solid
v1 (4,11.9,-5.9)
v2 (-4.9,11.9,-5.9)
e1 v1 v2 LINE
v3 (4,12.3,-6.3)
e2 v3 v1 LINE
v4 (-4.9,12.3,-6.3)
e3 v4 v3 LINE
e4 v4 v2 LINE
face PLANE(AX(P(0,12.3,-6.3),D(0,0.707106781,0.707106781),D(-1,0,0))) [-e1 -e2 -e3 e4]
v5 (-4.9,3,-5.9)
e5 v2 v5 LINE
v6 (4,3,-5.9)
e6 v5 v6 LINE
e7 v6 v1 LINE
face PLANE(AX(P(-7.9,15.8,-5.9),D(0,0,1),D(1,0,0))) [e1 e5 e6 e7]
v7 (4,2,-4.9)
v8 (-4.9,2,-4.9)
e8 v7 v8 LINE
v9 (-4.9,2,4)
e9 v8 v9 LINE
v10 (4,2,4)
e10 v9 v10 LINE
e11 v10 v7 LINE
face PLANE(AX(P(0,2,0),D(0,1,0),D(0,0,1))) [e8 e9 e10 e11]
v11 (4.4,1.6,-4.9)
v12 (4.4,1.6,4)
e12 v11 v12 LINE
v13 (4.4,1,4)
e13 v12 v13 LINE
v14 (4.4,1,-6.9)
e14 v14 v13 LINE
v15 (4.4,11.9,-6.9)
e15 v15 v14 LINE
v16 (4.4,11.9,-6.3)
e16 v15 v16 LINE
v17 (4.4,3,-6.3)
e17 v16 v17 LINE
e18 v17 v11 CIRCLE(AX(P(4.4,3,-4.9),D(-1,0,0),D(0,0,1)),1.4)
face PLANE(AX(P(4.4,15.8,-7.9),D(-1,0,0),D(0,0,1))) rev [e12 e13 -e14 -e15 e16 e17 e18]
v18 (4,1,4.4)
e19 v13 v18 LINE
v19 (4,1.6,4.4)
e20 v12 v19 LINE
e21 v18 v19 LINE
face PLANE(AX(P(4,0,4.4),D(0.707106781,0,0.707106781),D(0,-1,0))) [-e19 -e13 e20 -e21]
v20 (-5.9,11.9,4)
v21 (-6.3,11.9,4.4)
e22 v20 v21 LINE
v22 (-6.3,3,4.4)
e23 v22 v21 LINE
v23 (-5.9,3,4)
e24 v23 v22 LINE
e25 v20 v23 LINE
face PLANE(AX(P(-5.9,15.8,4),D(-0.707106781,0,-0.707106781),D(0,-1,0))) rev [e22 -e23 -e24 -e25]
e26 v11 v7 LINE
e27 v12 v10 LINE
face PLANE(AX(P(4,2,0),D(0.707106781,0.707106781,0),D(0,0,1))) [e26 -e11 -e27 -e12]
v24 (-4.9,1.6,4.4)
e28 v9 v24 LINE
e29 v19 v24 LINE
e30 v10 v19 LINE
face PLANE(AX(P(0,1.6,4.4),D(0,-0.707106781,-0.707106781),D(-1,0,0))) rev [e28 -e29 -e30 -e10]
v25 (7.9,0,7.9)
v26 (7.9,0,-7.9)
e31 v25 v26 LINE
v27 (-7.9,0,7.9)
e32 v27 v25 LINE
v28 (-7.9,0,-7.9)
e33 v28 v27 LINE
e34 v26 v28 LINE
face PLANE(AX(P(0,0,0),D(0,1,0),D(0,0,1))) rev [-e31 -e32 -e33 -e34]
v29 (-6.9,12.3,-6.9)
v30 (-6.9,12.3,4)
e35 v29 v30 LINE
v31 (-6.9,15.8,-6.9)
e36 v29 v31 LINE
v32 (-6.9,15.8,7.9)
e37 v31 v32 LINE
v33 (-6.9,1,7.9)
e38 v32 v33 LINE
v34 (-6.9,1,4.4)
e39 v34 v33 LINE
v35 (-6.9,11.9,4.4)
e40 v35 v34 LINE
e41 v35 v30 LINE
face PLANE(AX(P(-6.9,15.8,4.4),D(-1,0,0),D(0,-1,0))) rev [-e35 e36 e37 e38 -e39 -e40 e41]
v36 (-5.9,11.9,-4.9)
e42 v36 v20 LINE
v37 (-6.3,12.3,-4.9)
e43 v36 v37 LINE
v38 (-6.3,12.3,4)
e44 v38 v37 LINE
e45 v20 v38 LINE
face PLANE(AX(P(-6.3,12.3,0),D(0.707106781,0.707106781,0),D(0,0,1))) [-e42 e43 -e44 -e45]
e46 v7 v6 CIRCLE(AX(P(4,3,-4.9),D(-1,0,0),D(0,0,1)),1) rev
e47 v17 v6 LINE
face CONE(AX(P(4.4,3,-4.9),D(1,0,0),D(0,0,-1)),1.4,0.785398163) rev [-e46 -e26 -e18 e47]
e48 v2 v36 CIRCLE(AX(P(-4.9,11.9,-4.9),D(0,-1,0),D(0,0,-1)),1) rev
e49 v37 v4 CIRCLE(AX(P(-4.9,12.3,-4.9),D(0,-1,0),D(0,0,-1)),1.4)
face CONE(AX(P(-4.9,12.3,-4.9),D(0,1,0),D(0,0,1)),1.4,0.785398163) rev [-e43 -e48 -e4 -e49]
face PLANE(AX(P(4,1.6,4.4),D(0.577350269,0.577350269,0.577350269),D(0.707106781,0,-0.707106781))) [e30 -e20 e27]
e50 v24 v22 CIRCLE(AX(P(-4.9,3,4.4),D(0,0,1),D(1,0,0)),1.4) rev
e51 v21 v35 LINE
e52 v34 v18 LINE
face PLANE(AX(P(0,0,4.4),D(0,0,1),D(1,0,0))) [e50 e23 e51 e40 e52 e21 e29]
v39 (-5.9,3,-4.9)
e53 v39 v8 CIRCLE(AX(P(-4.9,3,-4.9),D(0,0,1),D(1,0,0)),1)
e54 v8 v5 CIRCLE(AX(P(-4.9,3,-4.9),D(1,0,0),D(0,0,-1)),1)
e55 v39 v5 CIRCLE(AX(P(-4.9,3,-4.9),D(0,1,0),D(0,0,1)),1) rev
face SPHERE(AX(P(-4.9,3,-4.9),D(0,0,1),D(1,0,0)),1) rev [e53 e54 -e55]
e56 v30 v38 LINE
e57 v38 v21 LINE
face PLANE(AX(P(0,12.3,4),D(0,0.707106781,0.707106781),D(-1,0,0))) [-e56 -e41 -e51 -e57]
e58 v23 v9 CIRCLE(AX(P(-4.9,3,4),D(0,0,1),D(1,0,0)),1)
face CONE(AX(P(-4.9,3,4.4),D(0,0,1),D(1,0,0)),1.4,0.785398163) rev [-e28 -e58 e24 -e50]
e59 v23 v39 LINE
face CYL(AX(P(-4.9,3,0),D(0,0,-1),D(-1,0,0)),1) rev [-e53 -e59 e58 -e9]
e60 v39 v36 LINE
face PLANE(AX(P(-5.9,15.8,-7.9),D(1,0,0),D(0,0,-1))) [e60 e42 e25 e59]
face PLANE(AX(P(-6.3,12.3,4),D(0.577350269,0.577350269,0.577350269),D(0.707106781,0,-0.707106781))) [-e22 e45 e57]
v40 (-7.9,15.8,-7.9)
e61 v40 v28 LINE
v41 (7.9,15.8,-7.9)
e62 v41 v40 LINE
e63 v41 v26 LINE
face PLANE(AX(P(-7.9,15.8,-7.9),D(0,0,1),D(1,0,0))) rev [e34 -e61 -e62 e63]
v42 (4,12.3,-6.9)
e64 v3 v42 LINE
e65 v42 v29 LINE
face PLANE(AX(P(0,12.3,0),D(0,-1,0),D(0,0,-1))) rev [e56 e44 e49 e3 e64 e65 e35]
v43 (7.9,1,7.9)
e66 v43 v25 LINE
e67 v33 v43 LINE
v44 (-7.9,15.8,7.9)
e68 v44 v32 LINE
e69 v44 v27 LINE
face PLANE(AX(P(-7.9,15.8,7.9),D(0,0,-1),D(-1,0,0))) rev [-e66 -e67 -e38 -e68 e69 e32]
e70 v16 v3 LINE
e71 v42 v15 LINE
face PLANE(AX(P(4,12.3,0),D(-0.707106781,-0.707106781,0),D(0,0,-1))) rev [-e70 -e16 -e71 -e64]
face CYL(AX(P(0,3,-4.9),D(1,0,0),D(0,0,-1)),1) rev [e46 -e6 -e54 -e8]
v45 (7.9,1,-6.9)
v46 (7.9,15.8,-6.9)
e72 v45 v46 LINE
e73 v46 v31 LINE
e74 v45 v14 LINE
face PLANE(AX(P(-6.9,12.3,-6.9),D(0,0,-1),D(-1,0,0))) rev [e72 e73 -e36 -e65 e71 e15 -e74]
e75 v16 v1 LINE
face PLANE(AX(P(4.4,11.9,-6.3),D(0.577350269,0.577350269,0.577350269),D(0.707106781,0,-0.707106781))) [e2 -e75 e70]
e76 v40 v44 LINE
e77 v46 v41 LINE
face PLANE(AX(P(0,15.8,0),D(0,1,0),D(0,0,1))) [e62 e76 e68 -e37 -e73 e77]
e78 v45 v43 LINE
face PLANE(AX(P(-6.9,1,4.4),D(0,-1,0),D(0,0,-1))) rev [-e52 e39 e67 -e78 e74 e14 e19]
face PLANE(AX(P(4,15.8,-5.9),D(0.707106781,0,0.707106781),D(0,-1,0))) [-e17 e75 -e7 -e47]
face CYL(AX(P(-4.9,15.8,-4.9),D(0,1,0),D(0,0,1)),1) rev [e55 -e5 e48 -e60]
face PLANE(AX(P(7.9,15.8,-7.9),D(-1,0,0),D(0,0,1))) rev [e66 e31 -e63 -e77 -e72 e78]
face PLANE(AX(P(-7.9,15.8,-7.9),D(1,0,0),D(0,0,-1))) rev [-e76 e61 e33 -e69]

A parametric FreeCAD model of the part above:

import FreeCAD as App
import Part
import Sketcher
Q = App.Units.Quantity


def edges_at(feature, points):
    """Names of the edges that pass closest to the given points."""
    edges = feature.Shape.Edges
    near = lambda p: min(range(len(edges)), key=lambda i: edges[i].distToShape(Part.Vertex(*p))[0])
    return sorted({f"Edge{near(p) + 1}" for p in points})


def faces_at(feature, points):
    """Names of the faces that lie closest to the given points."""
    faces = feature.Shape.Faces
    near = lambda p: min(range(len(faces)), key=lambda i: faces[i].distToShape(Part.Vertex(*p))[0])
    return sorted({f"Face{near(p) + 1}" for p in points})


def add_polygon(sketch, points):
    """Adds a closed chain of lines whose ends are joined by coincident constraints."""
    first, n = sketch.GeometryCount, len(points)
    for a, b in zip(points, points[1:] + points[:1]):
        sketch.addGeometry(Part.LineSegment(App.Vector(*a, 0), App.Vector(*b, 0)), False)
    for i in range(n):
        sketch.addConstraint(Sketcher.Constraint("Coincident", first + i, 2, first + (i + 1) % n, 1))

doc = App.newDocument("Part")
body = doc.addObject("PartDesign::Body", "Body")

sketch1 = body.newObject("Sketcher::SketchObject", "Sketch")
sketch1.AttachmentSupport = (doc.getObject("XZ_Plane"), [""])
sketch1.MapMode = "FlatFace"
add_polygon(sketch1, [(-7.9, -7.9), (-7.9, 7.9), (7.9, 7.9), (7.9, -7.9)])
sketch1.addConstraint([
    Sketcher.Constraint("Vertical", 0),
    Sketcher.Constraint("Horizontal", 1),
    Sketcher.Constraint("Vertical", 2),
    Sketcher.Constraint("Horizontal", 3),
    Sketcher.Constraint("Symmetric", 0, 2, 2, 2, -1, 1),
    Sketcher.Constraint("Equal", 3, 0),
    Sketcher.Constraint("DistanceX", 1, 1, 1, 2, Q("15.8 mm")),
])
pad1 = body.newObject("PartDesign::Pad", "Pad")
pad1.Profile = sketch1
pad1.Length = 15.8
pad1.Reversed = True
doc.recompute()

thickness = body.newObject("PartDesign::Thickness", "Thickness")
thickness.Base = (pad1, faces_at(pad1, [(0, 15.8, 0), (0, 7.9, 7.9), (7.9, 7.9, 0)]))
thickness.Value = 2
thickness.Reversed = True
thickness.Join = "Intersection"

sketch2 = body.newObject("Sketcher::SketchObject", "Sketch001")
sketch2.AttachmentSupport = (doc.getObject("XY_Plane"), [""])
sketch2.MapMode = "FlatFace"
sketch2.AttachmentOffset = App.Placement(App.Vector(0, 0, 7.9), App.Rotation())
add_polygon(sketch2, [(-5.9, 15.8), (-6.9, 15.8), (-6.9, 1), (7.9, 1), (7.9, 2), (-5.9, 2)])
sketch2.addConstraint([
    Sketcher.Constraint("Horizontal", 0),
    Sketcher.Constraint("Vertical", 1),
    Sketcher.Constraint("Horizontal", 2),
    Sketcher.Constraint("Vertical", 3),
    Sketcher.Constraint("Horizontal", 4),
    Sketcher.Constraint("Vertical", 5),
    Sketcher.Constraint("Equal", 2, 1),
    Sketcher.Constraint("Equal", 0, 3),
    Sketcher.Constraint("DistanceX", 0, 2, 0, 1, Q("1 mm")),
    Sketcher.Constraint("DistanceX", 2, 1, 2, 2, Q("14.8 mm")),
    Sketcher.Constraint("DistanceY", -1, 1, 1, 2, Q("1 mm")),
    Sketcher.Constraint("DistanceX", 0, 2, -1, 1, Q("6.9 mm")),
])
pocket1 = body.newObject("PartDesign::Pocket", "Pocket")
pocket1.Profile = sketch2
pocket1.Length = 3.5

sketch3 = body.newObject("Sketcher::SketchObject", "Sketch002")
sketch3.AttachmentSupport = (doc.getObject("XZ_Plane"), [""])
sketch3.MapMode = "FlatFace"
sketch3.AttachmentOffset = App.Placement(App.Vector(0, 0, -15.8), App.Rotation())
add_polygon(sketch3, [(-5.9, 4.4), (-5.9, -5.9), (7.9, -5.9), (7.9, -6.9), (-6.9, -6.9), (-6.9, 4.4)])
sketch3.addConstraint([
    Sketcher.Constraint("Vertical", 0),
    Sketcher.Constraint("Horizontal", 1),
    Sketcher.Constraint("Vertical", 2),
    Sketcher.Constraint("Horizontal", 3),
    Sketcher.Constraint("Vertical", 4),
    Sketcher.Constraint("Horizontal", 5),
    Sketcher.Constraint("Equal", 5, 2),
    Sketcher.Constraint("DistanceX", 5, 1, 5, 2, Q("1 mm")),
    Sketcher.Constraint("DistanceX", 1, 1, 1, 2, Q("13.8 mm")),
    Sketcher.Constraint("DistanceY", 0, 2, 0, 1, Q("10.3 mm")),
    Sketcher.Constraint("DistanceX", 0, 2, -1, 1, Q("5.9 mm")),
    Sketcher.Constraint("DistanceY", 0, 2, -1, 1, Q("5.9 mm")),
])
pocket2 = body.newObject("PartDesign::Pocket", "Pocket001")
pocket2.Profile = sketch3
pocket2.Length = 3.5
pocket2.Reversed = True

sketch4 = body.newObject("Sketcher::SketchObject", "Sketch003")
sketch4.AttachmentSupport = (doc.getObject("YZ_Plane"), [""])
sketch4.MapMode = "FlatFace"
sketch4.AttachmentOffset = App.Placement(App.Vector(0, 0, 7.9), App.Rotation())
add_polygon(sketch4, [(2, -5.9), (2, 4.4), (1, 4.4), (1, -6.9), (12.3, -6.9), (12.3, -5.9)])
sketch4.addConstraint([
    Sketcher.Constraint("Vertical", 0),
    Sketcher.Constraint("Horizontal", 1),
    Sketcher.Constraint("Vertical", 2),
    Sketcher.Constraint("Horizontal", 3),
    Sketcher.Constraint("Vertical", 4),
    Sketcher.Constraint("Horizontal", 5),
    Sketcher.Constraint("Equal", 5, 0),
    Sketcher.Constraint("Equal", 3, 2),
    Sketcher.Constraint("DistanceX", 1, 2, 1, 1, Q("1 mm")),
    Sketcher.Constraint("DistanceX", 3, 1, 3, 2, Q("11.3 mm")),
    Sketcher.Constraint("DistanceX", -1, 1, 0, 2, Q("2 mm")),
    Sketcher.Constraint("DistanceY", -1, 1, 0, 2, Q("4.4 mm")),
])
pocket3 = body.newObject("PartDesign::Pocket", "Pocket002")
pocket3.Profile = sketch4
pocket3.Type = "TwoLengths"
pocket3.Length = 24.7
pocket3.Length2 = 3.5
pocket3.Reversed = True
doc.recompute()

fillet = body.newObject("PartDesign::Fillet", "Fillet")
fillet.Base = (pocket3, edges_at(pocket3, [(-5.9, 2, -0.75), (-5.9, 7.15, -5.9), (-0.75, 2, -5.9)]))
fillet.Radius = 1
doc.recompute()

chamfer = body.newObject("PartDesign::Chamfer", "Chamfer")
chamfer.Base = (fillet, edges_at(fillet, [
    (-5.9, 7.65, 4.4),
    (-6.4, 12.3, 4.4),
    (-5.9, 12.3, -0.25),
    (-0.25, 2, 4.4),
    (4.4, 2, -0.25),
    (4.4, 12.3, -6.4),
    (4.4, 1.5, 4.4),
    (4.4, 7.65, -5.9),
    (-0.25, 12.3, -5.9),
    (-5.607, 12.3, -5.607),
    (4.4, 2.293, -5.607),
    (-5.607, 2.293, 4.4),
]))
chamfer.Size = 0.4

doc.recompute()
